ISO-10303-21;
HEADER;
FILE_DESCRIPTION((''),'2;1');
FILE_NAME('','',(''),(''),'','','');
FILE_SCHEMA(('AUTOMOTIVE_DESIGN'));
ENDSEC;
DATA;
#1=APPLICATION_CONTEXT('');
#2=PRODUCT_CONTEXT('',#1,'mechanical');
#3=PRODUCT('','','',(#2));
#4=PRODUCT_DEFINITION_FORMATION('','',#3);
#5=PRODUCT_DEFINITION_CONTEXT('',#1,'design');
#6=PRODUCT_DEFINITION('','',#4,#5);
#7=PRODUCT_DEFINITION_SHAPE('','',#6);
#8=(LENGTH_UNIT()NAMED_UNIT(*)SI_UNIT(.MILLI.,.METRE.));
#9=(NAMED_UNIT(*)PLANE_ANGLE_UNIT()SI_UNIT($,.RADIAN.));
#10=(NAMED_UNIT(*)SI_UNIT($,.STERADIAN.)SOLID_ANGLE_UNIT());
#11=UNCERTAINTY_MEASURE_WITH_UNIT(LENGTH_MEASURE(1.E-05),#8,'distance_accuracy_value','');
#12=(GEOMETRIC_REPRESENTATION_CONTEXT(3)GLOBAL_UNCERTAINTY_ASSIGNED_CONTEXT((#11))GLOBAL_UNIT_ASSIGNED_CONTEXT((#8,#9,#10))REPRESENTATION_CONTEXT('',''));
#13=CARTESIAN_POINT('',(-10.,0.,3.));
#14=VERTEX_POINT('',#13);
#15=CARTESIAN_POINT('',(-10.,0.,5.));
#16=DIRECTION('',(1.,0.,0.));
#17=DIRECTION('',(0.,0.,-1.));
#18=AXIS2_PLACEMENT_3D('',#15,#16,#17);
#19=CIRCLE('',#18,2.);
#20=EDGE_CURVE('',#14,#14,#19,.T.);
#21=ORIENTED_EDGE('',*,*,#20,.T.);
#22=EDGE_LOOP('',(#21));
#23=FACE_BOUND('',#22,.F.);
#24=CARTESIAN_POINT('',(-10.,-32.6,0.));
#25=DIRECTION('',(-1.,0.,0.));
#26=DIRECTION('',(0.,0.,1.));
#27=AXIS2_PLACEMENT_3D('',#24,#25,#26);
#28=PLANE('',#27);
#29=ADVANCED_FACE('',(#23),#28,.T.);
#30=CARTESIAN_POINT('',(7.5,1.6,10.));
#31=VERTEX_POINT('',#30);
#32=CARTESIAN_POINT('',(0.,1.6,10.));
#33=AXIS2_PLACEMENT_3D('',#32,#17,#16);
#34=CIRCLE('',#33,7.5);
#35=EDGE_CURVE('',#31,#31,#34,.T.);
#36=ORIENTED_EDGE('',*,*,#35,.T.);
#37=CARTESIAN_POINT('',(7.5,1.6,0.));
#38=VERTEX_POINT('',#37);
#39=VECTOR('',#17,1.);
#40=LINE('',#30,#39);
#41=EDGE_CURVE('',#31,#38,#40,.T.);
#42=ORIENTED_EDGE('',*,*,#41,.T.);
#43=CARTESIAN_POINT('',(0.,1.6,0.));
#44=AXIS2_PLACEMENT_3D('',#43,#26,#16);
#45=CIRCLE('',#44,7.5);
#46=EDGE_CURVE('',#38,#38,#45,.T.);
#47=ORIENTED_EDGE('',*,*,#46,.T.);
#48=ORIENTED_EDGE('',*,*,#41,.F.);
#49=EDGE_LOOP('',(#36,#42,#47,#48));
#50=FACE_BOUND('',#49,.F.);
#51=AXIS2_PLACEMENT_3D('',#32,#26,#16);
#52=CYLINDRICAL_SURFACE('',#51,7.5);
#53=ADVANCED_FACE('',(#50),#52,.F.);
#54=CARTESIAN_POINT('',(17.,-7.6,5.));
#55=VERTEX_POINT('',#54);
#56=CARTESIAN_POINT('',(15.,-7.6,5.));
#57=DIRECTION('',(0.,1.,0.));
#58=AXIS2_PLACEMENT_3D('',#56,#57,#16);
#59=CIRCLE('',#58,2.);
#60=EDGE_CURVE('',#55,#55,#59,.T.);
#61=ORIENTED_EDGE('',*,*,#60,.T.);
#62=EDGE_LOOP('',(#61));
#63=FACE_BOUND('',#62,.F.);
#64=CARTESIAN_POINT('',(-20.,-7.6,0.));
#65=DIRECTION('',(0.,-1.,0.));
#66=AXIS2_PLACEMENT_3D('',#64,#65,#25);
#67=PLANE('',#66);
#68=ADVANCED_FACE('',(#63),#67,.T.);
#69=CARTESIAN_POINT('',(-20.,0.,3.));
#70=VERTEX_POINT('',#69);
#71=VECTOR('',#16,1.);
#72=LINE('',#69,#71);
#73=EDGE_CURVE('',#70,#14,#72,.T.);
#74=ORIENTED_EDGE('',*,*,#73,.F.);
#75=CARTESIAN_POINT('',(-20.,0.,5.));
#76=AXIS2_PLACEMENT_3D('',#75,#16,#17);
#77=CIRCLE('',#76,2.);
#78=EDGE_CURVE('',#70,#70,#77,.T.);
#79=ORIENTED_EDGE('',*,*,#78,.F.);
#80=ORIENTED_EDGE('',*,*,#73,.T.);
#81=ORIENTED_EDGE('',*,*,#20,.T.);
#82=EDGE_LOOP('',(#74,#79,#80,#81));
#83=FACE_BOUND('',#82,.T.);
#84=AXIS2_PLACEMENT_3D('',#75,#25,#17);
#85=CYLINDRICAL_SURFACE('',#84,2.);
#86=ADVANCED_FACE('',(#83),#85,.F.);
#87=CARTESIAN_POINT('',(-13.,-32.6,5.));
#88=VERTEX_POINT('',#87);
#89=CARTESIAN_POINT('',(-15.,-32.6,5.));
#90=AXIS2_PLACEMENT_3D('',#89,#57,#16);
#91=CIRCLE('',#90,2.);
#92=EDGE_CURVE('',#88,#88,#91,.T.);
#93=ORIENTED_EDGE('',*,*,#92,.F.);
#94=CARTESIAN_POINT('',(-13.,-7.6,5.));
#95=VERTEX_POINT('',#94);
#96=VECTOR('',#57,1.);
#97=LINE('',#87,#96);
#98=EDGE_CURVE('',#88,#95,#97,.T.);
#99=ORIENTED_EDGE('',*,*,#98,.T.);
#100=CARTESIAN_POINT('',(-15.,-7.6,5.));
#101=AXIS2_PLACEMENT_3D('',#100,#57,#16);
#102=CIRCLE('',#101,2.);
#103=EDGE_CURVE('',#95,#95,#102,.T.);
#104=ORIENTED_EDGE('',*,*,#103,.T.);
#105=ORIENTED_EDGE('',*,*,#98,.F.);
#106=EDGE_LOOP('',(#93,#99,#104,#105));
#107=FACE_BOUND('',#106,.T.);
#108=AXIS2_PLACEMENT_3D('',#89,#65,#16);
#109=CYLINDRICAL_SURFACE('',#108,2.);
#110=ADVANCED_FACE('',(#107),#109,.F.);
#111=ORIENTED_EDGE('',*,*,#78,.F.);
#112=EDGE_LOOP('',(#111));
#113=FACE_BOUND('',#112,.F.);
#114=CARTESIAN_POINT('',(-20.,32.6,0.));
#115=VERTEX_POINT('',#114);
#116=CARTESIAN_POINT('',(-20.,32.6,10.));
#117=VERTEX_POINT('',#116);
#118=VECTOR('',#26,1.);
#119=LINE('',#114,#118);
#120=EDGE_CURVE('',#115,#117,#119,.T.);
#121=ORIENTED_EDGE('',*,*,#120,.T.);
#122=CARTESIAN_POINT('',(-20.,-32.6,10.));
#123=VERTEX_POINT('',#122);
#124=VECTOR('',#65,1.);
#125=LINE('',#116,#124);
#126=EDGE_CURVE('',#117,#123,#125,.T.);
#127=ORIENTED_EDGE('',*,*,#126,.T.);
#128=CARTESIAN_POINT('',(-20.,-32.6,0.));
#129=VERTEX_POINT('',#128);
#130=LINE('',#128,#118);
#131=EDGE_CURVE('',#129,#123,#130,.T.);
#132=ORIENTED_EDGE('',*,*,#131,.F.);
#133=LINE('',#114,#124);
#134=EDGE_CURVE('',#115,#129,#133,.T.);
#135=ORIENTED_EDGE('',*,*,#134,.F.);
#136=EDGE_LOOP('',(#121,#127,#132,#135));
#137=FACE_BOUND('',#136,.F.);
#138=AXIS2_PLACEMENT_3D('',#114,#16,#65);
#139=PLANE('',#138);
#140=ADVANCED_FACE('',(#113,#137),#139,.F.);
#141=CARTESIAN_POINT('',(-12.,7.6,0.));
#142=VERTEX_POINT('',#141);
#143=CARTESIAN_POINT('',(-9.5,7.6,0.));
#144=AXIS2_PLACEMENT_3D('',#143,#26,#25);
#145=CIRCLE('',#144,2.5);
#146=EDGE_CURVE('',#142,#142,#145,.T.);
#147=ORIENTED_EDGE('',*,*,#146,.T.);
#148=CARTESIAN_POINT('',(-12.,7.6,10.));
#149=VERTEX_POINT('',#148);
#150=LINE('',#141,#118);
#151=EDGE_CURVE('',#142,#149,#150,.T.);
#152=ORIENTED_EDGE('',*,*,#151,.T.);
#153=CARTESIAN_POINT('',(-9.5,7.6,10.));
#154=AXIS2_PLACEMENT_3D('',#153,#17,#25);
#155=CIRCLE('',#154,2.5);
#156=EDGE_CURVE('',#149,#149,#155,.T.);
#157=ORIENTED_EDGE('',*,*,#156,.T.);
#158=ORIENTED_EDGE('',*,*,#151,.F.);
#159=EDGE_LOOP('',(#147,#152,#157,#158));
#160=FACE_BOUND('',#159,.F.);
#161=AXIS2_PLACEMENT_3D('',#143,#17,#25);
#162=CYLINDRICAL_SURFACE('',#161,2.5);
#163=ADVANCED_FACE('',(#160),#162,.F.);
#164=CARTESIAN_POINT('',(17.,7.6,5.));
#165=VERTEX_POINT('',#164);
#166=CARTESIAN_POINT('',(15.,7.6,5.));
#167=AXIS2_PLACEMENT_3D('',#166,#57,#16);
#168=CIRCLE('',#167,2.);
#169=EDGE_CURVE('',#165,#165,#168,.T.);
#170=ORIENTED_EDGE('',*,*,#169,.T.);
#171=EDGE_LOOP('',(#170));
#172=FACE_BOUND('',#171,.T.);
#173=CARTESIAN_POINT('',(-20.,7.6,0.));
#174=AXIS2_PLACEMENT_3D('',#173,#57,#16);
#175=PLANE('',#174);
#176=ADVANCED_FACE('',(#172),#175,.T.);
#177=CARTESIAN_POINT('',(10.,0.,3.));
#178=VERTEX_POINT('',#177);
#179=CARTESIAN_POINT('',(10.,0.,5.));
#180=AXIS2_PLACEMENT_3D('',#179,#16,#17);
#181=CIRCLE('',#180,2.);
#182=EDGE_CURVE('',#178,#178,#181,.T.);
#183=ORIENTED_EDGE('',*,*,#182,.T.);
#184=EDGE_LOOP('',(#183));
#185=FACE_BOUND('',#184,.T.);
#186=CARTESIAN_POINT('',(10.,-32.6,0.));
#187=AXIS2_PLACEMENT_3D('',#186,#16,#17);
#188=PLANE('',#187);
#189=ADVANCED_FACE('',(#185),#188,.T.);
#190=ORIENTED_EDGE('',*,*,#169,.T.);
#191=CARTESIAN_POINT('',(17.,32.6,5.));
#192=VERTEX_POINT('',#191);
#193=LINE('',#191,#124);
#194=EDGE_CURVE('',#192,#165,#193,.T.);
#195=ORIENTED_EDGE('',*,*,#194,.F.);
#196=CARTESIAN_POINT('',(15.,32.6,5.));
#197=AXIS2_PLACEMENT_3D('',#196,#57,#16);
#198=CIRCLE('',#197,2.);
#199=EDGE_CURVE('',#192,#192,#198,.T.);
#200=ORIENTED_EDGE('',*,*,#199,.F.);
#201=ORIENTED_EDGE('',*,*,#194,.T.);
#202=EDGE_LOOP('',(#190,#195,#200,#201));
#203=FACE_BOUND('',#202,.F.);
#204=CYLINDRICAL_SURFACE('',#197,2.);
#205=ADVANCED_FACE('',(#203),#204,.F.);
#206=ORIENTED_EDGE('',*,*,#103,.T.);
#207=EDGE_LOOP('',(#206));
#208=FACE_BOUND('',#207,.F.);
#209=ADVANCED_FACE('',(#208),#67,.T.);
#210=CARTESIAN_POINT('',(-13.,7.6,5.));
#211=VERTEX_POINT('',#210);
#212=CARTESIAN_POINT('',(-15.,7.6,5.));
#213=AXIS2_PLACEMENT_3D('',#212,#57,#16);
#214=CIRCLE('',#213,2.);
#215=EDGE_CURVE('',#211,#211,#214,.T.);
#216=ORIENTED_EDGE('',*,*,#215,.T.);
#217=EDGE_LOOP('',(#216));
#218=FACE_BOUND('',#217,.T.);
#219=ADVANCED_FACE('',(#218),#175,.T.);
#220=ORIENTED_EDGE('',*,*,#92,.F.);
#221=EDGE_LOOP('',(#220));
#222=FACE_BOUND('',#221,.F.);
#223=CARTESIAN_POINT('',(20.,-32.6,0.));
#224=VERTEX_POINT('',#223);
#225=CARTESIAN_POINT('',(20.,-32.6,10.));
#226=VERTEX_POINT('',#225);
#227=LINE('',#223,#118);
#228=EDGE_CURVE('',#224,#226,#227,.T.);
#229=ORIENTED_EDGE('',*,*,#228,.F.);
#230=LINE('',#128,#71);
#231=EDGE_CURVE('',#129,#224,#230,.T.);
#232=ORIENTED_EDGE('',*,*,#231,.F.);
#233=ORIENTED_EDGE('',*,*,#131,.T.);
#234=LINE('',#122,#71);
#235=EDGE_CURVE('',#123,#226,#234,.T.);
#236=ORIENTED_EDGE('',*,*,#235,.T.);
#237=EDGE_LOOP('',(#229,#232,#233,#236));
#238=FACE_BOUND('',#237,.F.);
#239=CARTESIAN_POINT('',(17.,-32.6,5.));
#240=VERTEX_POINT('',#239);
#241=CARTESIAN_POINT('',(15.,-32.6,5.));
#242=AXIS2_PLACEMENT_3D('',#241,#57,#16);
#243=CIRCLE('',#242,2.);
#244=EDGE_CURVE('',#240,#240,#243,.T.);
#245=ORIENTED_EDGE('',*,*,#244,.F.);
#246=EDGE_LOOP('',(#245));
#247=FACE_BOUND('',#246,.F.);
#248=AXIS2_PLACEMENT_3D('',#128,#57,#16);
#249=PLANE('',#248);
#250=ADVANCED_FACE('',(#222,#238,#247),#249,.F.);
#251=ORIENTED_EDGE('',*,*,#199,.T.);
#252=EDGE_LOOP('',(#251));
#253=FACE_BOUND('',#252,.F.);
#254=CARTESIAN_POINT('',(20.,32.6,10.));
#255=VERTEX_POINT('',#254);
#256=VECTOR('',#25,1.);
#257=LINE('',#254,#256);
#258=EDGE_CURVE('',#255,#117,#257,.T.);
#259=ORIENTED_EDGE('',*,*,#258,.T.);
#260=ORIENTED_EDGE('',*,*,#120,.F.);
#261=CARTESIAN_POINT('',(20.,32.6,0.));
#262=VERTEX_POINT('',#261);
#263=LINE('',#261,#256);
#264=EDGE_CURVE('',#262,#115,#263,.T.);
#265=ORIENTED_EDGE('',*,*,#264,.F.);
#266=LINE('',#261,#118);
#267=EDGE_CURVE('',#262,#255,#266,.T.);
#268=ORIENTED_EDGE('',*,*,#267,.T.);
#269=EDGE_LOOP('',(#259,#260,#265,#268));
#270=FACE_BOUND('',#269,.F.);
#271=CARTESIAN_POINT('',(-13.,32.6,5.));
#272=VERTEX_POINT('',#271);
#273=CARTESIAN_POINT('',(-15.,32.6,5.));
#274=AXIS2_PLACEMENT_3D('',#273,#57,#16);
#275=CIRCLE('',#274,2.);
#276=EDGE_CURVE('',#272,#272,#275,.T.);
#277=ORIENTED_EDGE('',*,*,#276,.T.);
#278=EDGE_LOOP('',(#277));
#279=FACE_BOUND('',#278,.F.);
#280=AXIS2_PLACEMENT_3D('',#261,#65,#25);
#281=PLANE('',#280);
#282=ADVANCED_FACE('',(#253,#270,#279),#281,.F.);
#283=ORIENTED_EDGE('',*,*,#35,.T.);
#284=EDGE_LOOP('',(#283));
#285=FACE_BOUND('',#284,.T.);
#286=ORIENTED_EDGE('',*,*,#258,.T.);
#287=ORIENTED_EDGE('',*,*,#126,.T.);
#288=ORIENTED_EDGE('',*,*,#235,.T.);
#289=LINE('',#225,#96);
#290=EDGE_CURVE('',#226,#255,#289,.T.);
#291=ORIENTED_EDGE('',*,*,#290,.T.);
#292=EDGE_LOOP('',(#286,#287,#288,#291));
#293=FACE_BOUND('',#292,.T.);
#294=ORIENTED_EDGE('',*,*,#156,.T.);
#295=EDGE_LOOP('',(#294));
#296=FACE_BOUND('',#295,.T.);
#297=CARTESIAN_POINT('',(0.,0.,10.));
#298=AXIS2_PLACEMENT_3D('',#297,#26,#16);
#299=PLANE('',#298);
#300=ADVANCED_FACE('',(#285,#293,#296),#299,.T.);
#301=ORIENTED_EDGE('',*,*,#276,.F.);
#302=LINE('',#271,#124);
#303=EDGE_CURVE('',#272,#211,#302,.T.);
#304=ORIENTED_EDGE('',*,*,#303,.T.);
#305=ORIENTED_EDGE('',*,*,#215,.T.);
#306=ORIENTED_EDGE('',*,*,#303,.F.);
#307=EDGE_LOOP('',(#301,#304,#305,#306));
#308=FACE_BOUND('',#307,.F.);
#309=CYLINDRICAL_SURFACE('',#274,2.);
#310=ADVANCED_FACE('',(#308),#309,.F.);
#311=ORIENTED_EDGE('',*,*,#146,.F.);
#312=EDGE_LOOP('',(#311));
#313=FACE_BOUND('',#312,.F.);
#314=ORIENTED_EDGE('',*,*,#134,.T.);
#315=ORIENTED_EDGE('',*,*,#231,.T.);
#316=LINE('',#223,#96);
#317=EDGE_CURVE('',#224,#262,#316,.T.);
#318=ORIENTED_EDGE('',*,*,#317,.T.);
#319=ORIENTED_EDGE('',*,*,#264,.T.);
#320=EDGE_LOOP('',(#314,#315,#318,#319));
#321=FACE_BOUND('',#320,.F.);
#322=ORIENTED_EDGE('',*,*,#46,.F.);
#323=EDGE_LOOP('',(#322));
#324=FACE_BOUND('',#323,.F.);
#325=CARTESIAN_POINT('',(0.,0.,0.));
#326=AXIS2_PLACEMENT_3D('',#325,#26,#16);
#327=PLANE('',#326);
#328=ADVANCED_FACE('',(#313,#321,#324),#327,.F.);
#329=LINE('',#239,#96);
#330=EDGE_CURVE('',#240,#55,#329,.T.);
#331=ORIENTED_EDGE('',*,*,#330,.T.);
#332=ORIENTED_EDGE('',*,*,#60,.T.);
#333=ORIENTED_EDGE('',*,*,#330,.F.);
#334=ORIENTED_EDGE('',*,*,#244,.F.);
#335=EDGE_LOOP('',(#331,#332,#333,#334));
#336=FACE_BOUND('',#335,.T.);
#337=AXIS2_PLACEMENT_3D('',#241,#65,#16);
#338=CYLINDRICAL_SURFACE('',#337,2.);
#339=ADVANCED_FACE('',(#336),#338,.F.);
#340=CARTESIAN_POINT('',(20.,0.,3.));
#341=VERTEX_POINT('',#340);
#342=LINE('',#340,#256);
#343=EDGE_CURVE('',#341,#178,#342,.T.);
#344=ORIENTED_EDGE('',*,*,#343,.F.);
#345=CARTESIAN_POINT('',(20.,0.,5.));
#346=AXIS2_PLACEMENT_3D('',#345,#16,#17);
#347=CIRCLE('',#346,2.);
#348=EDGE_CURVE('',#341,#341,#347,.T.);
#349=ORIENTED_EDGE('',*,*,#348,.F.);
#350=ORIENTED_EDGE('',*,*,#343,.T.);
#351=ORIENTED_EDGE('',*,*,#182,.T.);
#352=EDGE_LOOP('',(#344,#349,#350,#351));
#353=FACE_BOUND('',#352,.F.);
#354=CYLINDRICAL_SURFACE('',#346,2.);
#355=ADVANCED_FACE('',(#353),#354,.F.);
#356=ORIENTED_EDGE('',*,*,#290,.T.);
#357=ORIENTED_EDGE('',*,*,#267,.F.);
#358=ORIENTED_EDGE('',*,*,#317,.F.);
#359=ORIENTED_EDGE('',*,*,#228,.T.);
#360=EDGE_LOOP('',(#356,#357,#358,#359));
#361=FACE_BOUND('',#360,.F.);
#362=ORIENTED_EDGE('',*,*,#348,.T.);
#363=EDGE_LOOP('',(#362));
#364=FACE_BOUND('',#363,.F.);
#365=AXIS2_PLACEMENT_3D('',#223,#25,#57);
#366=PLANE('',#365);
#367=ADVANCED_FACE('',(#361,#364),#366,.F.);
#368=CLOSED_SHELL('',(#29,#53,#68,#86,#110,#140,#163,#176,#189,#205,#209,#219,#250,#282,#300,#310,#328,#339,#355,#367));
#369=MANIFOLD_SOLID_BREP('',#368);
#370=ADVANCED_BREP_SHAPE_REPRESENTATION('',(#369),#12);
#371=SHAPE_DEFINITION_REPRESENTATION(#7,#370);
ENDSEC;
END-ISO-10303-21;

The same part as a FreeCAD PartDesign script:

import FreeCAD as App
import Part
import Sketcher

V = App.Vector

doc = App.newDocument("Part")
params = doc.addObject("Spreadsheet::Sheet", "Params")
for row, (alias, value) in enumerate([
    ("sketch1_width", "40 mm"),
    ("sketch1_height", "65.2 mm"),
    ("pad1_length", "10 mm"),
    ("sketch2_diameter", "4 mm"),
    ("pocket1_length", "25 mm"),
    ("sketch3_diameter", "4 mm"),
    ("pocket2_length", "10 mm"),
    ("sketch4_diameter", "15 mm"),
    ("pocket3_length", "10 mm"),
    ("sketch5_diameter", "5 mm"),
    ("pocket4_length", "10 mm"),
], start=1):
    params.set(f"A{row}", alias)
    params.set(f"B{row}", "=" + value)
    params.setAlias(f"B{row}", alias)

body = doc.addObject("PartDesign::Body", "Body")

# Sketch on XY plane
sketch1 = body.newObject("Sketcher::SketchObject", "Sketch")
sketch1.AttachmentSupport = (doc.getObject("XY_Plane"), [""])
sketch1.MapMode = "FlatFace"
sketch1.addGeometry([
    Part.LineSegment(V(-20, 32.6, 0), V(-20, -32.6, 0)),
    Part.LineSegment(V(-20, -32.6, 0), V(20, -32.6, 0)),
    Part.LineSegment(V(20, -32.6, 0), V(20, 32.6, 0)),
    Part.LineSegment(V(20, 32.6, 0), V(-20, 32.6, 0)),
], False)
sketch1.addConstraint([
    Sketcher.Constraint("Coincident", 0, 2, 1, 1),
    Sketcher.Constraint("Coincident", 1, 2, 2, 1),
    Sketcher.Constraint("Coincident", 2, 2, 3, 1),
    Sketcher.Constraint("Coincident", 3, 2, 0, 1),
    Sketcher.Constraint("Vertical", 0),
    Sketcher.Constraint("Horizontal", 1),
    Sketcher.Constraint("Vertical", 2),
    Sketcher.Constraint("Horizontal", 3),
    Sketcher.Constraint("Symmetric", 0, 2, 2, 2, -1, 1),
    Sketcher.Constraint("DistanceX", 1, 1, 1, 2, 40.0),
    Sketcher.Constraint("DistanceY", 0, 2, 0, 1, 65.2),
])
sketch1.setExpression("Constraints[9]", "Params.sketch1_width")
sketch1.setExpression("Constraints[10]", "Params.sketch1_height")
pad1 = body.newObject("PartDesign::Pad", "Pad")
pad1.Profile = sketch1
pad1.setExpression("Length", "Params.pad1_length")

# Sketch on XZ plane
sketch2 = body.newObject("Sketcher::SketchObject", "Sketch001")
sketch2.AttachmentSupport = (doc.getObject("XZ_Plane"), [""])
sketch2.MapMode = "FlatFace"
sketch2.AttachmentOffset = App.Placement(V(0, 0, -32.6), App.Rotation())
sketch2.addGeometry([
    Part.Circle(V(15, 5, 0), V(0, 0, 1), 2),
    Part.Circle(V(-15, 5, 0), V(0, 0, 1), 2),
], False)
sketch2.addConstraint([
    Sketcher.Constraint("Equal", 0, 1),
    Sketcher.Constraint("Symmetric", 0, 3, 1, 3, -2),
    Sketcher.Constraint("Diameter", 0, 4.0),
    Sketcher.Constraint("DistanceY", -1, 1, 0, 3, 5.0),
    Sketcher.Constraint("DistanceX", -1, 1, 0, 3, 15.0),
])
sketch2.setExpression("Constraints[2]", "Params.sketch2_diameter")
pocket1 = body.newObject("PartDesign::Pocket", "Pocket")
pocket1.Profile = sketch2
pocket1.setExpression("Length", "Params.pocket1_length")
pocket1.Reversed = True
doc.recompute()

mirrored = body.newObject("PartDesign::Mirrored", "Mirrored")
mirrored.Originals = [pocket1]
mirrored.MirrorPlane = (doc.getObject("XZ_Plane"), [""])
body.Tip = mirrored

# Sketch on YZ plane
sketch3 = body.newObject("Sketcher::SketchObject", "Sketch002")
sketch3.AttachmentSupport = (doc.getObject("YZ_Plane"), [""])
sketch3.MapMode = "FlatFace"
sketch3.AttachmentOffset = App.Placement(V(0, 0, 20), App.Rotation())
sketch3.addGeometry(Part.Circle(V(0, 5, 0), V(0, 0, 1), 2), False)
sketch3.addConstraint([
    Sketcher.Constraint("PointOnObject", 0, 3, -2),
    Sketcher.Constraint("Diameter", 0, 4.0),
    Sketcher.Constraint("DistanceY", -1, 1, 0, 3, 5.0),
])
sketch3.setExpression("Constraints[1]", "Params.sketch3_diameter")
pocket2 = body.newObject("PartDesign::Pocket", "Pocket001")
pocket2.Profile = sketch3
pocket2.setExpression("Length", "Params.pocket2_length")
doc.recompute()

mirrored2 = body.newObject("PartDesign::Mirrored", "Mirrored001")
mirrored2.Originals = [pocket2]
mirrored2.MirrorPlane = (doc.getObject("YZ_Plane"), [""])
body.Tip = mirrored2

# Sketch on XY plane
sketch4 = body.newObject("Sketcher::SketchObject", "Sketch003")
sketch4.AttachmentSupport = (doc.getObject("XY_Plane"), [""])
sketch4.MapMode = "FlatFace"
sketch4.AttachmentOffset = App.Placement(V(0, 0, 10), App.Rotation())
sketch4.addGeometry(Part.Circle(V(0, 1.6, 0), V(0, 0, 1), 7.5), False)
sketch4.addConstraint([
    Sketcher.Constraint("PointOnObject", 0, 3, -2),
    Sketcher.Constraint("Diameter", 0, 15.0),
    Sketcher.Constraint("DistanceY", -1, 1, 0, 3, 1.6),
])
sketch4.setExpression("Constraints[1]", "Params.sketch4_diameter")
pocket3 = body.newObject("PartDesign::Pocket", "Pocket002")
pocket3.Profile = sketch4
pocket3.setExpression("Length", "Params.pocket3_length")

# Sketch on XY plane
sketch5 = body.newObject("Sketcher::SketchObject", "Sketch004")
sketch5.AttachmentSupport = (doc.getObject("XY_Plane"), [""])
sketch5.MapMode = "FlatFace"
sketch5.addGeometry(Part.Circle(V(-9.5, 7.6, 0), V(0, 0, 1), 2.5), False)
sketch5.addConstraint([
    Sketcher.Constraint("Diameter", 0, 5.0),
    Sketcher.Constraint("DistanceX", 0, 3, -1, 1, 9.5),
    Sketcher.Constraint("DistanceY", -1, 1, 0, 3, 7.6),
])
sketch5.setExpression("Constraints[0]", "Params.sketch5_diameter")
pocket4 = body.newObject("PartDesign::Pocket", "Pocket003")
pocket4.Profile = sketch5
pocket4.setExpression("Length", "Params.pocket4_length")
pocket4.Reversed = True

doc.recompute()
